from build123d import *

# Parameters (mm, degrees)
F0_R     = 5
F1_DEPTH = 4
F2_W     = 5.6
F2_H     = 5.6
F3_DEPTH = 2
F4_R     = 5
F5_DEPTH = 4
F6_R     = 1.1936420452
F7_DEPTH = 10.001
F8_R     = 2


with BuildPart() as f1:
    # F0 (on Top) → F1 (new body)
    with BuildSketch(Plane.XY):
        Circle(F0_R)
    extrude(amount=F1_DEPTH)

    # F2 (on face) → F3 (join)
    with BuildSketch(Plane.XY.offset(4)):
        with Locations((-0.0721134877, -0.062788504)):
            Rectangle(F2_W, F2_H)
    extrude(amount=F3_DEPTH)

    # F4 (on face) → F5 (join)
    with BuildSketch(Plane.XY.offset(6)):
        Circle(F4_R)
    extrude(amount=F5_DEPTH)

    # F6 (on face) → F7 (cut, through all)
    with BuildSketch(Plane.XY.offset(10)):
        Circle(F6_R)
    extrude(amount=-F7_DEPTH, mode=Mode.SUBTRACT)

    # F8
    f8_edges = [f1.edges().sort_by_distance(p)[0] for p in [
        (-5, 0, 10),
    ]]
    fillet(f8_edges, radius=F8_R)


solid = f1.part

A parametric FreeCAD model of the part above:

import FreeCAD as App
import Part
import Sketcher

V = App.Vector
Q = App.Units.Quantity


def edges_at(feature, points):
    """Names of the edges that pass closest to the given points."""
    edges = feature.Shape.Edges
    near = lambda p: min(range(len(edges)), key=lambda i: edges[i].distToShape(Part.Vertex(*p))[0])
    return sorted({f"Edge{near(p) + 1}" for p in points})


def add_polygon(sketch, points):
    """Adds a closed chain of lines whose ends are joined by coincident constraints."""
    first, n = sketch.GeometryCount, len(points)
    for a, b in zip(points, points[1:] + points[:1]):
        sketch.addGeometry(Part.LineSegment(App.Vector(*a, 0), App.Vector(*b, 0)), False)
    for i in range(n):
        sketch.addConstraint(Sketcher.Constraint("Coincident", first + i, 2, first + (i + 1) % n, 1))

doc = App.newDocument("Part")
body = doc.addObject("PartDesign::Body", "Body")

# Sketch on XY plane
sketch1 = doc.addObject("Sketcher::SketchObject", "Sketch")
body.addObject(sketch1)
sketch1.AttachmentSupport = (doc.XY_Plane, [""])
sketch1.MapMode = "FlatFace"
sketch1.addGeometry(Part.Circle(V(0, 0, 0), V(0, 0, 1), 5), False)
sketch1.addConstraint([
    Sketcher.Constraint("Coincident", 0, 3, -1, 1),
    Sketcher.Constraint("Diameter", 0, Q("10 mm")),
])
pad1 = doc.addObject("PartDesign::Pad", "Pad")
body.addObject(pad1)
pad1.Profile = sketch1
pad1.Length = 4

# Sketch on XY plane
sketch2 = doc.addObject("Sketcher::SketchObject", "Sketch001")
body.addObject(sketch2)
sketch2.AttachmentSupport = (doc.XY_Plane, [""])
sketch2.MapMode = "FlatFace"
sketch2.AttachmentOffset = App.Placement(V(0, 0, 4), App.Rotation())
add_polygon(sketch2, [(-3, 3), (-3, -3), (3, -3), (3, 3)])  # lines 0-3
sketch2.addConstraint([
    Sketcher.Constraint("Vertical", 0),
    Sketcher.Constraint("Horizontal", 1),
    Sketcher.Constraint("Vertical", 2),
    Sketcher.Constraint("Horizontal", 3),
    Sketcher.Constraint("Equal", 3, 0),
    Sketcher.Constraint("DistanceX", 1, 1, 1, 2, Q("5.6 mm")),
    Sketcher.Constraint("DistanceY", 0, 2, -1, 1, Q("2.862789 mm")),
    Sketcher.Constraint("DistanceX", 0, 2, -1, 1, Q("2.872113 mm")),
])
pad2 = doc.addObject("PartDesign::Pad", "Pad001")
body.addObject(pad2)
pad2.Profile = sketch2
pad2.Length = 2

# Sketch on XY plane
sketch3 = doc.addObject("Sketcher::SketchObject", "Sketch002")
body.addObject(sketch3)
sketch3.AttachmentSupport = (doc.XY_Plane, [""])
sketch3.MapMode = "FlatFace"
sketch3.AttachmentOffset = App.Placement(V(0, 0, 6), App.Rotation())
sketch3.addGeometry(Part.Circle(V(0, 0, 0), V(0, 0, 1), 5), False)
sketch3.addConstraint([
    Sketcher.Constraint("Coincident", 0, 3, -1, 1),
    Sketcher.Constraint("Diameter", 0, Q("10 mm")),
])
pad3 = doc.addObject("PartDesign::Pad", "Pad002")
body.addObject(pad3)
pad3.Profile = sketch3
pad3.Length = 4

# Sketch on XY plane
sketch4 = doc.addObject("Sketcher::SketchObject", "Sketch003")
body.addObject(sketch4)
sketch4.AttachmentSupport = (doc.XY_Plane, [""])
sketch4.MapMode = "FlatFace"
sketch4.AttachmentOffset = App.Placement(V(0, 0, 10), App.Rotation())
sketch4.addGeometry(Part.Circle(V(0, 0, 0), V(0, 0, 1), 1.2), False)
sketch4.addConstraint([
    Sketcher.Constraint("Coincident", 0, 3, -1, 1),
    Sketcher.Constraint("Diameter", 0, Q("2.387284 mm")),
])
pocket1 = doc.addObject("PartDesign::Pocket", "Pocket")
body.addObject(pocket1)
pocket1.Profile = sketch4
pocket1.Type = "ThroughAll"
doc.recompute()

fillet = doc.addObject("PartDesign::Fillet", "Fillet")
body.addObject(fillet)
fillet.Base = (pocket1, edges_at(pocket1, [(-5, 0, 10)]))
fillet.Radius = 2

doc.recompute()
